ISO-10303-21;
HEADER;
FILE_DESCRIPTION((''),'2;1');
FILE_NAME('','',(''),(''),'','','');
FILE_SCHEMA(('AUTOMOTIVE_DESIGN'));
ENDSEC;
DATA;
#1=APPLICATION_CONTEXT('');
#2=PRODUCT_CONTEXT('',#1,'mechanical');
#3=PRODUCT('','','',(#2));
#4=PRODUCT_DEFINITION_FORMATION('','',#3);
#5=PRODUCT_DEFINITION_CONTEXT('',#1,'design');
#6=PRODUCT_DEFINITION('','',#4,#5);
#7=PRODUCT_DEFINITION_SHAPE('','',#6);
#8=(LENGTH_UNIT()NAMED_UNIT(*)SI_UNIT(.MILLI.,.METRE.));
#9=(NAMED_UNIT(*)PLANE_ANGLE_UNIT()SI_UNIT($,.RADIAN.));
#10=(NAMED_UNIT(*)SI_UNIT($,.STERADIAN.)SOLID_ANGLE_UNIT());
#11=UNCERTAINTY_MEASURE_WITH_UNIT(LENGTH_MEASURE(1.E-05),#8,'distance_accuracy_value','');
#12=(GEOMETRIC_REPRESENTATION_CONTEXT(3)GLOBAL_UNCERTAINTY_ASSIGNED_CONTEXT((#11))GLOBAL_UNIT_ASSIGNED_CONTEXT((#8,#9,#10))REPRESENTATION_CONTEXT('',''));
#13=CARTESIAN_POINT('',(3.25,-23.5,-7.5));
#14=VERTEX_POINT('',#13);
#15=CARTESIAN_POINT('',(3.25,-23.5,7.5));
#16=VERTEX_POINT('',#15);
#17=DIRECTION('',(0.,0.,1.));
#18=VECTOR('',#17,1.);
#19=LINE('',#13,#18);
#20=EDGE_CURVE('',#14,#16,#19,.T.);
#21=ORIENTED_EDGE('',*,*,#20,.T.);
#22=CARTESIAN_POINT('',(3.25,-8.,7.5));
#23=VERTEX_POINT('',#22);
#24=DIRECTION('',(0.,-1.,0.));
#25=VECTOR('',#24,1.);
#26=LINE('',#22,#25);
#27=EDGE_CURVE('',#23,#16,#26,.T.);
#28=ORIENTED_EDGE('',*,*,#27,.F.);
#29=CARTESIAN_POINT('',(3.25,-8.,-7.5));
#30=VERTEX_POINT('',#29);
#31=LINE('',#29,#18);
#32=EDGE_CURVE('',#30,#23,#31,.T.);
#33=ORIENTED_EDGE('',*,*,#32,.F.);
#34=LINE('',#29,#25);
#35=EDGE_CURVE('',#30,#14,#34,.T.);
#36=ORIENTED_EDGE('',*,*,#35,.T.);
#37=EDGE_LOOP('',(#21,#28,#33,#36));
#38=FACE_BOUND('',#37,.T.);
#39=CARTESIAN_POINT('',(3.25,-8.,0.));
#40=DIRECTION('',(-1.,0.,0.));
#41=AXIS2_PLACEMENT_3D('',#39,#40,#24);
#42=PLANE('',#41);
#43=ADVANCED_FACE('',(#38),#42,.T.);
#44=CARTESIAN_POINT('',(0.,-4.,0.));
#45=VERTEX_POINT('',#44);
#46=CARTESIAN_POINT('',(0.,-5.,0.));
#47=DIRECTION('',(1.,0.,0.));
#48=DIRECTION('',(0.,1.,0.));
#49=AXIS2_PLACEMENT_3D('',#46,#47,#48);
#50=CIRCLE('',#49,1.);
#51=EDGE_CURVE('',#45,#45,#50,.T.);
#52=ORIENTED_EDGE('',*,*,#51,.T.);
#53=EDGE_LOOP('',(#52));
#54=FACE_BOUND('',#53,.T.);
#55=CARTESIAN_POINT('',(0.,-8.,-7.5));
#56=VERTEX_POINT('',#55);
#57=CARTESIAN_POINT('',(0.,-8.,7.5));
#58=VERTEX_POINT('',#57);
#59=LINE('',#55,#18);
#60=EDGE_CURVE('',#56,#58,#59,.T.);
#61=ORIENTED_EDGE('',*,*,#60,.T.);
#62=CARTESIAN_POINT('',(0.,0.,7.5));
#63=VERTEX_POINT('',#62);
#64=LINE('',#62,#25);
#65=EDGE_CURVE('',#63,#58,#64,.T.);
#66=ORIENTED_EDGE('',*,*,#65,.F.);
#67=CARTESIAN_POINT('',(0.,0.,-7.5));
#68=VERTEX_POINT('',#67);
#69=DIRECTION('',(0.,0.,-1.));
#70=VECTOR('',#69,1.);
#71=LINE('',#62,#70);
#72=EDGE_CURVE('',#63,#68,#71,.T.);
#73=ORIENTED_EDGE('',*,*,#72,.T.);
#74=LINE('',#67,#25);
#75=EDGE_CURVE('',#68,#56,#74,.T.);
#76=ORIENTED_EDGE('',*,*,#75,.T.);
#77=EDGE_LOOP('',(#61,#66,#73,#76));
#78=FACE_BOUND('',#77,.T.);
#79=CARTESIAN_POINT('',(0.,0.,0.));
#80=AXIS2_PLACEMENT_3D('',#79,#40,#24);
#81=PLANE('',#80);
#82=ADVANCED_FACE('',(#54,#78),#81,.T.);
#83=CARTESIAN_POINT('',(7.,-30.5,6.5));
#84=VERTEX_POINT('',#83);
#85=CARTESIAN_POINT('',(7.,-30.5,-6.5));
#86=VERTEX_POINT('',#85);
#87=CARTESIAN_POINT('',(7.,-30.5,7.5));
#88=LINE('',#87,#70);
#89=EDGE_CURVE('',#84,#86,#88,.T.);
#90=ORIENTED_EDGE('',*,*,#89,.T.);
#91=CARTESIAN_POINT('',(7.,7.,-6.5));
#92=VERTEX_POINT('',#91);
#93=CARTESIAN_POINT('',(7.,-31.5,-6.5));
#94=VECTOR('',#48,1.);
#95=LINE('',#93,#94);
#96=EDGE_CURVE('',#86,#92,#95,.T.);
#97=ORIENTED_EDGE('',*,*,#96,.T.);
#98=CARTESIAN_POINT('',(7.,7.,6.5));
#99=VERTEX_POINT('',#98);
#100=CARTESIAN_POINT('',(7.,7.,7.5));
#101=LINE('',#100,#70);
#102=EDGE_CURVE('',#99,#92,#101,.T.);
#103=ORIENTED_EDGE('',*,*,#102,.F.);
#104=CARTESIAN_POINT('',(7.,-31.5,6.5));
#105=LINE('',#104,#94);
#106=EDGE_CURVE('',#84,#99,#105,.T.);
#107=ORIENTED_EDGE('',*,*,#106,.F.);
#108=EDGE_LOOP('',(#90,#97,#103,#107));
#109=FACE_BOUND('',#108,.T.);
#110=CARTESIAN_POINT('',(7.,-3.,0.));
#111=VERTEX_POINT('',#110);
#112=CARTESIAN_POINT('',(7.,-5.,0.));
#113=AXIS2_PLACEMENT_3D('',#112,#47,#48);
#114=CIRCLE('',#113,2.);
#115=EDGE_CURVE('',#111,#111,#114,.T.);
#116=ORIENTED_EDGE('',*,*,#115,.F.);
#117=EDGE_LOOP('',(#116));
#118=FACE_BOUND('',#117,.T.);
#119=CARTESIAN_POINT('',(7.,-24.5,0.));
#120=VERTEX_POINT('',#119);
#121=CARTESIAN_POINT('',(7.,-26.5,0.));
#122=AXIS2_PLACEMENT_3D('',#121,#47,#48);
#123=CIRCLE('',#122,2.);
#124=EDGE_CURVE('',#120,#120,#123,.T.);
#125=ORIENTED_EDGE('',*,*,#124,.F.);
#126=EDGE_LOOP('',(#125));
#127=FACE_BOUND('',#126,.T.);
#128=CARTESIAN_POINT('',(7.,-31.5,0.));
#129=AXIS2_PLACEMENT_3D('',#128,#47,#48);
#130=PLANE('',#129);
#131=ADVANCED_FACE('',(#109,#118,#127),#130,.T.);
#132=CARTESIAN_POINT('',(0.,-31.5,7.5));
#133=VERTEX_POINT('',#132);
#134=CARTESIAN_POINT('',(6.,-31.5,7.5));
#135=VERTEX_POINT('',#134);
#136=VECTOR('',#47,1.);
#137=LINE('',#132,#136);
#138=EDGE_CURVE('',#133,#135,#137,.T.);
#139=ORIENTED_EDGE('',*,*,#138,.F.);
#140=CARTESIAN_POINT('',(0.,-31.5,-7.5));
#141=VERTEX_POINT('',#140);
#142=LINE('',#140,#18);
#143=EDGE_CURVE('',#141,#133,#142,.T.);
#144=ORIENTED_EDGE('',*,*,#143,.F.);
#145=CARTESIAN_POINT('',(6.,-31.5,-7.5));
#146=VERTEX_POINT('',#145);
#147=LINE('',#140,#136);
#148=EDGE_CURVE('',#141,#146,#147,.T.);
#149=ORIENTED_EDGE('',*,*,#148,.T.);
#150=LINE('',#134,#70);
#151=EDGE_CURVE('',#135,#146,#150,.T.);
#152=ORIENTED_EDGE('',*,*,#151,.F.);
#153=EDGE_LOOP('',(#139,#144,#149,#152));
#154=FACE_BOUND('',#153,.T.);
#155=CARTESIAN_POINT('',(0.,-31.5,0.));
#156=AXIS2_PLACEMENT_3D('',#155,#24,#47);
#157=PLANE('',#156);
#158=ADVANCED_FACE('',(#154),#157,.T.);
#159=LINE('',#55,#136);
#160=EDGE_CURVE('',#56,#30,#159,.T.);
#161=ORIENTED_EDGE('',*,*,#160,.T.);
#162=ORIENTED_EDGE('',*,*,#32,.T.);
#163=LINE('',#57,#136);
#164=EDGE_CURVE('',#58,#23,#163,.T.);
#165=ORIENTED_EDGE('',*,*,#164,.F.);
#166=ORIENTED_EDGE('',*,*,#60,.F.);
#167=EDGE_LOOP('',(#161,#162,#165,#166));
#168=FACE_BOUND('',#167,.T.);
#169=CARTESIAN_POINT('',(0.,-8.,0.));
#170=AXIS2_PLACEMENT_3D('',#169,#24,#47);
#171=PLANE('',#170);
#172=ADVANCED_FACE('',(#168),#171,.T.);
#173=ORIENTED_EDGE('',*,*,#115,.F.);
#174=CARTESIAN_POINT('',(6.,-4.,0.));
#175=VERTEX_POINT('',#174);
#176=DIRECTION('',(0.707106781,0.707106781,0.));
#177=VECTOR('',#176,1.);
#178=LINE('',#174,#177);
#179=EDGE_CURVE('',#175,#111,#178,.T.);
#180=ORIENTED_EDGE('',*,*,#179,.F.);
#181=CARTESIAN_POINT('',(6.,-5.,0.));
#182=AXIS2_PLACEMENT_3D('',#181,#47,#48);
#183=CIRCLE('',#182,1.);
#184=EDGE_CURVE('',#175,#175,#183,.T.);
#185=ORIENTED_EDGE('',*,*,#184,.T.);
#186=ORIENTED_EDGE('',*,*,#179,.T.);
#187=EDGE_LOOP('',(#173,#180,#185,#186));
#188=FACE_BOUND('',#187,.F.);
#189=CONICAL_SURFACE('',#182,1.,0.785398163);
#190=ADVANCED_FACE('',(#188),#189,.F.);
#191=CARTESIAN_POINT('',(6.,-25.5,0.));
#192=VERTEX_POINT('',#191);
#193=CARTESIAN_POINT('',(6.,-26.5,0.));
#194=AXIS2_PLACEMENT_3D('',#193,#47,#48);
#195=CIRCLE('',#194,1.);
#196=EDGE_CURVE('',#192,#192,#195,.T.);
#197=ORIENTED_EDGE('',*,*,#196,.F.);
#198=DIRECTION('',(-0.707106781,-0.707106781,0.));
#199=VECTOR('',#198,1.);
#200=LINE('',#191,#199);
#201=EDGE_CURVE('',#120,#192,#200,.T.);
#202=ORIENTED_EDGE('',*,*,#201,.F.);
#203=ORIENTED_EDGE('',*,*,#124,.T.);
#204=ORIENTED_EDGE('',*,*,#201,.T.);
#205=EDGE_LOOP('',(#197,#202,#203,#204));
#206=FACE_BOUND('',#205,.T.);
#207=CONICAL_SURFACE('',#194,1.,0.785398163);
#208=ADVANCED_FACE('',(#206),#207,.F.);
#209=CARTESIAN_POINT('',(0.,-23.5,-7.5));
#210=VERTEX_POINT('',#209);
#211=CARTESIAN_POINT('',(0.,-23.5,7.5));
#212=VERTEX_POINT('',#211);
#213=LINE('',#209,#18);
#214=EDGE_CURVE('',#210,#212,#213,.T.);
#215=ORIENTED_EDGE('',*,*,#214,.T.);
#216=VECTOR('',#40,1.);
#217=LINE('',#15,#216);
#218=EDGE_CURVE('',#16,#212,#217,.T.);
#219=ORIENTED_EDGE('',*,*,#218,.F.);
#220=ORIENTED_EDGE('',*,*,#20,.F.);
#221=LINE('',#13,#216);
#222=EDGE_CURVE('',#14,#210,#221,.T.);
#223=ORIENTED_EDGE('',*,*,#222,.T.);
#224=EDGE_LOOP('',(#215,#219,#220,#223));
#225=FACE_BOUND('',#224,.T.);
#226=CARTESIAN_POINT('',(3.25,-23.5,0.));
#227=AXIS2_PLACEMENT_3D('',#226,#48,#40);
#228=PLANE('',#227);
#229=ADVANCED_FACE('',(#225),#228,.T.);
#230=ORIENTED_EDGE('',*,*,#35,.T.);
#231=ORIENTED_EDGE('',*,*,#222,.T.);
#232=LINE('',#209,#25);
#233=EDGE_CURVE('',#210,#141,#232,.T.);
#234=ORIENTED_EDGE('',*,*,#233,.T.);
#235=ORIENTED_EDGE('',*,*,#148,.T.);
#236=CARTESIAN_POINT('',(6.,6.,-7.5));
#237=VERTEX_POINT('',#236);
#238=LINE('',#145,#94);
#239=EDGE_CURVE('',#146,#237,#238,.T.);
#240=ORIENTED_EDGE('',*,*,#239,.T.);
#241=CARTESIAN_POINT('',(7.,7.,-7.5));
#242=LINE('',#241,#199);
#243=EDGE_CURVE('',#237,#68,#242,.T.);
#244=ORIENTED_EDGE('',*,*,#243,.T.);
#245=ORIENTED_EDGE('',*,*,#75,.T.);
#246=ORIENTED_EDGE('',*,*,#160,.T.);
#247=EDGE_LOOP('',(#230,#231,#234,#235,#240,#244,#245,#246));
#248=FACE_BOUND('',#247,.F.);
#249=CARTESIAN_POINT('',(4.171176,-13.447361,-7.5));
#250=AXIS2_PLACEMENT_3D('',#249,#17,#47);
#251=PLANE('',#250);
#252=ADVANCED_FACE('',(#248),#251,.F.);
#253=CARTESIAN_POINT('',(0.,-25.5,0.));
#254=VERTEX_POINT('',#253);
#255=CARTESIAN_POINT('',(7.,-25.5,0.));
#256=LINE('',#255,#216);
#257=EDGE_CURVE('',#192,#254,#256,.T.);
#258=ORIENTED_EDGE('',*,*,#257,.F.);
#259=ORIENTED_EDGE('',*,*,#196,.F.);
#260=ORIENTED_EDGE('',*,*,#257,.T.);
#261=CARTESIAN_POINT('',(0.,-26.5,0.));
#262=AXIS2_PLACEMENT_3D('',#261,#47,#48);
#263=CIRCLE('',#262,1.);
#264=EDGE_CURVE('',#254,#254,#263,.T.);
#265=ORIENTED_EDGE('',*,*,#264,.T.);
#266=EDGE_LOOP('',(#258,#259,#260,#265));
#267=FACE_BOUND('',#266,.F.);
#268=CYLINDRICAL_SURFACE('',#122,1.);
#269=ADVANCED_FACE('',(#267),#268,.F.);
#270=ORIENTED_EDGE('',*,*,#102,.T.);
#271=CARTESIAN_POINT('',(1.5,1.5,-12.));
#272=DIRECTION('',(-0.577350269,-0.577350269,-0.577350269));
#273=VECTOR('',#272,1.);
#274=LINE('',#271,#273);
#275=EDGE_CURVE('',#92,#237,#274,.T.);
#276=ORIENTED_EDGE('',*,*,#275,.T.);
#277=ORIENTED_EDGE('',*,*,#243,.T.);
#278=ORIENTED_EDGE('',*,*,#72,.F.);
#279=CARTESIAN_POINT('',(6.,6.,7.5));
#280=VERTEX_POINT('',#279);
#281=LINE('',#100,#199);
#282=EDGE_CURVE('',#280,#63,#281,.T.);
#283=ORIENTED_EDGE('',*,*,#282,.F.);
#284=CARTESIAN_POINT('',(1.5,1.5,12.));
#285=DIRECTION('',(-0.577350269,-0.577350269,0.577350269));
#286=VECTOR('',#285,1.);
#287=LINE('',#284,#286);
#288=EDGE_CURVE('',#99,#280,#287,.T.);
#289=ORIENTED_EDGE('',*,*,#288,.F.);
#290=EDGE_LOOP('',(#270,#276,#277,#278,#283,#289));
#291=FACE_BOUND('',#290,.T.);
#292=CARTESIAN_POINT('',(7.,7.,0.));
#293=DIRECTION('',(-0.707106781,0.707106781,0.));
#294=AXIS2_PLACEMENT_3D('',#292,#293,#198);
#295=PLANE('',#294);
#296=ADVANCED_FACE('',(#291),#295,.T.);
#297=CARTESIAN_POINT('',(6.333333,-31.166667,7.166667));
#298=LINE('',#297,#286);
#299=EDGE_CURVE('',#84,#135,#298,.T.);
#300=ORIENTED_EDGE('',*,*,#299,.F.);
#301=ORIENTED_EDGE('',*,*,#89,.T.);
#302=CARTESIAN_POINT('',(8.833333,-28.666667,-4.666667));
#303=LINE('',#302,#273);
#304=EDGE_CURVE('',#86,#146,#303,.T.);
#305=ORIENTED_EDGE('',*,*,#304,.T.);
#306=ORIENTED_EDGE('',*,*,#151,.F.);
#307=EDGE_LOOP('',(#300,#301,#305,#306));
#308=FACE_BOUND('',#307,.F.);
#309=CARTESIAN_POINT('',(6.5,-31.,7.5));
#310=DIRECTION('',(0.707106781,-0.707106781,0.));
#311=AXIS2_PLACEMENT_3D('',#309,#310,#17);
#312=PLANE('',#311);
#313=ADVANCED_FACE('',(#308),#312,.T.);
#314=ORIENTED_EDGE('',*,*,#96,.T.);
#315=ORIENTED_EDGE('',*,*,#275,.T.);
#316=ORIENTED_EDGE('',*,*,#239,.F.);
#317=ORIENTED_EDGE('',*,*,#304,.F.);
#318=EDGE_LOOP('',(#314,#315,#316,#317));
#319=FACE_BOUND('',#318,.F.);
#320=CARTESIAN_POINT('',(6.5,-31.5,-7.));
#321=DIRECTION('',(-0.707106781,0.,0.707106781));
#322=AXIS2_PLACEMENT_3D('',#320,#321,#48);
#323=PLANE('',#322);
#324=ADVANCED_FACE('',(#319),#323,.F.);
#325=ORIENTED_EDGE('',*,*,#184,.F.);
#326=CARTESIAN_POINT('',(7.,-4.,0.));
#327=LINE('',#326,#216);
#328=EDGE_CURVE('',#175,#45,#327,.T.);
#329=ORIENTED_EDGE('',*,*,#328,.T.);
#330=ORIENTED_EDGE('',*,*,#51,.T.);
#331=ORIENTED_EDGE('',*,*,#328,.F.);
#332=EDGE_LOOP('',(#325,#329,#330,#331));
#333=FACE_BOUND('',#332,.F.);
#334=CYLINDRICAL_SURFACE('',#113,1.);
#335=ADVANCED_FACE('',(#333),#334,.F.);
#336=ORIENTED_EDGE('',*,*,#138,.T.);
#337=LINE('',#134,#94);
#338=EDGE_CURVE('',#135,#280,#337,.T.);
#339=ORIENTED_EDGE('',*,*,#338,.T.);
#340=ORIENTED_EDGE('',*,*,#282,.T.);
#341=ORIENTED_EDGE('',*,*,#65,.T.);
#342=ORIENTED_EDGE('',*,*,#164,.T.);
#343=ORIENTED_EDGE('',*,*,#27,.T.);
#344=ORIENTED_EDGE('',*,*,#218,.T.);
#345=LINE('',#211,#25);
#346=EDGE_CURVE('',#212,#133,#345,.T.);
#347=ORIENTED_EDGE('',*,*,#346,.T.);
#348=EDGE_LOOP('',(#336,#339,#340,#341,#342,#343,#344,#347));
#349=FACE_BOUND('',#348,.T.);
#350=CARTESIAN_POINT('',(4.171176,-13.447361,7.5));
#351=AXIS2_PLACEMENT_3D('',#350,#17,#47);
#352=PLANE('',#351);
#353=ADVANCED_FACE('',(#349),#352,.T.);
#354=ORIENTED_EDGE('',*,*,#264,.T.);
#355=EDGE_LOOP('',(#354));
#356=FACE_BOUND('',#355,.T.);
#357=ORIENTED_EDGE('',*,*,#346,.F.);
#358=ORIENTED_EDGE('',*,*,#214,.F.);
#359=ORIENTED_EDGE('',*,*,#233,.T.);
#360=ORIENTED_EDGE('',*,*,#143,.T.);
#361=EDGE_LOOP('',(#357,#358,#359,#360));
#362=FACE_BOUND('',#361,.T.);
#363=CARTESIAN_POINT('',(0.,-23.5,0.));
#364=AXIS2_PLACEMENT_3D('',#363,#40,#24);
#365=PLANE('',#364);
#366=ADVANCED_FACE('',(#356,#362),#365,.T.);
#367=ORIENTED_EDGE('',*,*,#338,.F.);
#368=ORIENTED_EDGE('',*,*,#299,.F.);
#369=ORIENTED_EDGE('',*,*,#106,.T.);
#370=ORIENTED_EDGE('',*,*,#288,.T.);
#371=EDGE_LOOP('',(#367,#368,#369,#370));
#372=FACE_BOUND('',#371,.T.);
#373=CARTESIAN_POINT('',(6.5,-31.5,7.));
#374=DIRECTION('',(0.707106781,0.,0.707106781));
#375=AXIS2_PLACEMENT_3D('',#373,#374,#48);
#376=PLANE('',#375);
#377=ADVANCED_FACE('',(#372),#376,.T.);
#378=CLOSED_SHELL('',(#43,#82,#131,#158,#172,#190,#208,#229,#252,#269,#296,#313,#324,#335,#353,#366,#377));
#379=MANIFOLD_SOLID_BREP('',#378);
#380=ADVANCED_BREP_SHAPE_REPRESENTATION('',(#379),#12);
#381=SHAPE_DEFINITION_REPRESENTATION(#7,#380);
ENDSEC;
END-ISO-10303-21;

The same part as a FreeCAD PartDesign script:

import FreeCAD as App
import Part
import Sketcher

V = App.Vector
Q = App.Units.Quantity


def edges_at(feature, points):
    """Names of the edges that pass closest to the given points."""
    edges = feature.Shape.Edges
    near = lambda p: min(range(len(edges)), key=lambda i: edges[i].distToShape(Part.Vertex(*p))[0])
    return sorted({f"Edge{near(p) + 1}" for p in points})


def add_polygon(sketch, points):
    """Adds a closed chain of lines whose ends are joined by coincident constraints."""
    first, n = sketch.GeometryCount, len(points)
    for a, b in zip(points, points[1:] + points[:1]):
        sketch.addGeometry(Part.LineSegment(App.Vector(*a, 0), App.Vector(*b, 0)), False)
    for i in range(n):
        sketch.addConstraint(Sketcher.Constraint("Coincident", first + i, 2, first + (i + 1) % n, 1))

doc = App.newDocument("Part")
params = doc.addObject("Spreadsheet::Sheet", "Params")
for row, (alias, value) in enumerate([
    ("sketch1_width", "7 mm"),
    ("sketch1_height", "8 mm"),
    ("sketch1_height2", "15.5 mm"),
    ("sketch1_width2", "3.25 mm"),
    ("pad1_length", "15 mm"),
    ("sketch2_diameter", "2 mm"),
    ("chamfer_size", "1 mm"),
    ("chamfer2_size", "1 mm"),
], start=1):
    params.set(f"A{row}", alias)
    params.set(f"B{row}", "=" + value)
    params.setAlias(f"B{row}", alias)

body = doc.addObject("PartDesign::Body", "Body")

sketch1 = doc.addObject("Sketcher::SketchObject", "Sketch")
body.addObject(sketch1)
sketch1.AttachmentSupport = (doc.XY_Plane, [""])
sketch1.MapMode = "FlatFace"
add_polygon(sketch1, [(0, 0), (0, -8), (3.2, -8), (3.2, -23.5), (0, -23.5), (0, -31.5), (7, -31.5), (7, 7)])
sketch1.addConstraint([
    Sketcher.Constraint("Vertical", 0),
    Sketcher.Constraint("Horizontal", 1),
    Sketcher.Constraint("Vertical", 2),
    Sketcher.Constraint("Horizontal", 3),
    Sketcher.Constraint("Vertical", 4),
    Sketcher.Constraint("Horizontal", 5),
    Sketcher.Constraint("Vertical", 6),
    Sketcher.Constraint("Coincident", 7, 2, -1, 1),
    Sketcher.Constraint("PointOnObject", 3, 2, -2),
    Sketcher.Constraint("Equal", 0, 4),
    Sketcher.Constraint("DistanceX", 5, 1, 5, 2, Q("7 mm")),
    Sketcher.Constraint("DistanceY", 0, 2, 0, 1, Q("8 mm")),
    Sketcher.Constraint("Angle", 7, Q("-135 deg")),
    Sketcher.Constraint("DistanceY", 2, 2, 2, 1, Q("15.5 mm")),
    Sketcher.Constraint("DistanceX", 1, 1, 1, 2, Q("3.25 mm")),
])
sketch1.setExpression("Constraints[18]", "Params.sketch1_width")
sketch1.setExpression("Constraints[19]", "Params.sketch1_height")
sketch1.setExpression("Constraints[21]", "Params.sketch1_height2")
sketch1.setExpression("Constraints[22]", "Params.sketch1_width2")
pad1 = doc.addObject("PartDesign::Pad", "Pad")
body.addObject(pad1)
pad1.Profile = sketch1
pad1.setExpression("Length", "Params.pad1_length")
pad1.Midplane = True

sketch2 = doc.addObject("Sketcher::SketchObject", "Sketch001")
body.addObject(sketch2)
sketch2.AttachmentSupport = (doc.YZ_Plane, [""])
sketch2.MapMode = "FlatFace"
sketch2.AttachmentOffset = App.Placement(V(0, 0, 7), App.Rotation())
sketch2.addGeometry([
    Part.Circle(V(-26.5, 0, 0), V(0, 0, 1), 1),
    Part.Circle(V(-5, 0, 0), V(0, 0, 1), 1),
], False)
sketch2.addConstraint([
    Sketcher.Constraint("Equal", 0, 1),
    Sketcher.Constraint("PointOnObject", 0, 3, -1),
    Sketcher.Constraint("PointOnObject", 1, 3, -1),
    Sketcher.Constraint("Diameter", 0, Q("2 mm")),
    Sketcher.Constraint("DistanceX", 1, 3, -1, 1, Q("5 mm")),
    Sketcher.Constraint("DistanceX", 0, 3, -1, 1, Q("26.5 mm")),
])
sketch2.setExpression("Constraints[3]", "Params.sketch2_diameter")
pocket1 = doc.addObject("PartDesign::Pocket", "Pocket")
body.addObject(pocket1)
pocket1.Profile = sketch2
pocket1.Type = "ThroughAll"
doc.recompute()

chamfer = doc.addObject("PartDesign::Chamfer", "Chamfer")
body.addObject(chamfer)
chamfer.Base = (pocket1, edges_at(pocket1, [(7, -27.5, 0), (7, -6, 0)]))
chamfer.setExpression("Size", "Params.chamfer_size")
doc.recompute()

chamfer2 = doc.addObject("PartDesign::Chamfer", "Chamfer001")
body.addObject(chamfer2)
chamfer2.Base = (chamfer, edges_at(chamfer, [(7, -12.25, -7.5), (7, -31.5, 0), (7, -12.25, 7.5)]))
chamfer2.setExpression("Size", "Params.chamfer2_size")

doc.recompute()
